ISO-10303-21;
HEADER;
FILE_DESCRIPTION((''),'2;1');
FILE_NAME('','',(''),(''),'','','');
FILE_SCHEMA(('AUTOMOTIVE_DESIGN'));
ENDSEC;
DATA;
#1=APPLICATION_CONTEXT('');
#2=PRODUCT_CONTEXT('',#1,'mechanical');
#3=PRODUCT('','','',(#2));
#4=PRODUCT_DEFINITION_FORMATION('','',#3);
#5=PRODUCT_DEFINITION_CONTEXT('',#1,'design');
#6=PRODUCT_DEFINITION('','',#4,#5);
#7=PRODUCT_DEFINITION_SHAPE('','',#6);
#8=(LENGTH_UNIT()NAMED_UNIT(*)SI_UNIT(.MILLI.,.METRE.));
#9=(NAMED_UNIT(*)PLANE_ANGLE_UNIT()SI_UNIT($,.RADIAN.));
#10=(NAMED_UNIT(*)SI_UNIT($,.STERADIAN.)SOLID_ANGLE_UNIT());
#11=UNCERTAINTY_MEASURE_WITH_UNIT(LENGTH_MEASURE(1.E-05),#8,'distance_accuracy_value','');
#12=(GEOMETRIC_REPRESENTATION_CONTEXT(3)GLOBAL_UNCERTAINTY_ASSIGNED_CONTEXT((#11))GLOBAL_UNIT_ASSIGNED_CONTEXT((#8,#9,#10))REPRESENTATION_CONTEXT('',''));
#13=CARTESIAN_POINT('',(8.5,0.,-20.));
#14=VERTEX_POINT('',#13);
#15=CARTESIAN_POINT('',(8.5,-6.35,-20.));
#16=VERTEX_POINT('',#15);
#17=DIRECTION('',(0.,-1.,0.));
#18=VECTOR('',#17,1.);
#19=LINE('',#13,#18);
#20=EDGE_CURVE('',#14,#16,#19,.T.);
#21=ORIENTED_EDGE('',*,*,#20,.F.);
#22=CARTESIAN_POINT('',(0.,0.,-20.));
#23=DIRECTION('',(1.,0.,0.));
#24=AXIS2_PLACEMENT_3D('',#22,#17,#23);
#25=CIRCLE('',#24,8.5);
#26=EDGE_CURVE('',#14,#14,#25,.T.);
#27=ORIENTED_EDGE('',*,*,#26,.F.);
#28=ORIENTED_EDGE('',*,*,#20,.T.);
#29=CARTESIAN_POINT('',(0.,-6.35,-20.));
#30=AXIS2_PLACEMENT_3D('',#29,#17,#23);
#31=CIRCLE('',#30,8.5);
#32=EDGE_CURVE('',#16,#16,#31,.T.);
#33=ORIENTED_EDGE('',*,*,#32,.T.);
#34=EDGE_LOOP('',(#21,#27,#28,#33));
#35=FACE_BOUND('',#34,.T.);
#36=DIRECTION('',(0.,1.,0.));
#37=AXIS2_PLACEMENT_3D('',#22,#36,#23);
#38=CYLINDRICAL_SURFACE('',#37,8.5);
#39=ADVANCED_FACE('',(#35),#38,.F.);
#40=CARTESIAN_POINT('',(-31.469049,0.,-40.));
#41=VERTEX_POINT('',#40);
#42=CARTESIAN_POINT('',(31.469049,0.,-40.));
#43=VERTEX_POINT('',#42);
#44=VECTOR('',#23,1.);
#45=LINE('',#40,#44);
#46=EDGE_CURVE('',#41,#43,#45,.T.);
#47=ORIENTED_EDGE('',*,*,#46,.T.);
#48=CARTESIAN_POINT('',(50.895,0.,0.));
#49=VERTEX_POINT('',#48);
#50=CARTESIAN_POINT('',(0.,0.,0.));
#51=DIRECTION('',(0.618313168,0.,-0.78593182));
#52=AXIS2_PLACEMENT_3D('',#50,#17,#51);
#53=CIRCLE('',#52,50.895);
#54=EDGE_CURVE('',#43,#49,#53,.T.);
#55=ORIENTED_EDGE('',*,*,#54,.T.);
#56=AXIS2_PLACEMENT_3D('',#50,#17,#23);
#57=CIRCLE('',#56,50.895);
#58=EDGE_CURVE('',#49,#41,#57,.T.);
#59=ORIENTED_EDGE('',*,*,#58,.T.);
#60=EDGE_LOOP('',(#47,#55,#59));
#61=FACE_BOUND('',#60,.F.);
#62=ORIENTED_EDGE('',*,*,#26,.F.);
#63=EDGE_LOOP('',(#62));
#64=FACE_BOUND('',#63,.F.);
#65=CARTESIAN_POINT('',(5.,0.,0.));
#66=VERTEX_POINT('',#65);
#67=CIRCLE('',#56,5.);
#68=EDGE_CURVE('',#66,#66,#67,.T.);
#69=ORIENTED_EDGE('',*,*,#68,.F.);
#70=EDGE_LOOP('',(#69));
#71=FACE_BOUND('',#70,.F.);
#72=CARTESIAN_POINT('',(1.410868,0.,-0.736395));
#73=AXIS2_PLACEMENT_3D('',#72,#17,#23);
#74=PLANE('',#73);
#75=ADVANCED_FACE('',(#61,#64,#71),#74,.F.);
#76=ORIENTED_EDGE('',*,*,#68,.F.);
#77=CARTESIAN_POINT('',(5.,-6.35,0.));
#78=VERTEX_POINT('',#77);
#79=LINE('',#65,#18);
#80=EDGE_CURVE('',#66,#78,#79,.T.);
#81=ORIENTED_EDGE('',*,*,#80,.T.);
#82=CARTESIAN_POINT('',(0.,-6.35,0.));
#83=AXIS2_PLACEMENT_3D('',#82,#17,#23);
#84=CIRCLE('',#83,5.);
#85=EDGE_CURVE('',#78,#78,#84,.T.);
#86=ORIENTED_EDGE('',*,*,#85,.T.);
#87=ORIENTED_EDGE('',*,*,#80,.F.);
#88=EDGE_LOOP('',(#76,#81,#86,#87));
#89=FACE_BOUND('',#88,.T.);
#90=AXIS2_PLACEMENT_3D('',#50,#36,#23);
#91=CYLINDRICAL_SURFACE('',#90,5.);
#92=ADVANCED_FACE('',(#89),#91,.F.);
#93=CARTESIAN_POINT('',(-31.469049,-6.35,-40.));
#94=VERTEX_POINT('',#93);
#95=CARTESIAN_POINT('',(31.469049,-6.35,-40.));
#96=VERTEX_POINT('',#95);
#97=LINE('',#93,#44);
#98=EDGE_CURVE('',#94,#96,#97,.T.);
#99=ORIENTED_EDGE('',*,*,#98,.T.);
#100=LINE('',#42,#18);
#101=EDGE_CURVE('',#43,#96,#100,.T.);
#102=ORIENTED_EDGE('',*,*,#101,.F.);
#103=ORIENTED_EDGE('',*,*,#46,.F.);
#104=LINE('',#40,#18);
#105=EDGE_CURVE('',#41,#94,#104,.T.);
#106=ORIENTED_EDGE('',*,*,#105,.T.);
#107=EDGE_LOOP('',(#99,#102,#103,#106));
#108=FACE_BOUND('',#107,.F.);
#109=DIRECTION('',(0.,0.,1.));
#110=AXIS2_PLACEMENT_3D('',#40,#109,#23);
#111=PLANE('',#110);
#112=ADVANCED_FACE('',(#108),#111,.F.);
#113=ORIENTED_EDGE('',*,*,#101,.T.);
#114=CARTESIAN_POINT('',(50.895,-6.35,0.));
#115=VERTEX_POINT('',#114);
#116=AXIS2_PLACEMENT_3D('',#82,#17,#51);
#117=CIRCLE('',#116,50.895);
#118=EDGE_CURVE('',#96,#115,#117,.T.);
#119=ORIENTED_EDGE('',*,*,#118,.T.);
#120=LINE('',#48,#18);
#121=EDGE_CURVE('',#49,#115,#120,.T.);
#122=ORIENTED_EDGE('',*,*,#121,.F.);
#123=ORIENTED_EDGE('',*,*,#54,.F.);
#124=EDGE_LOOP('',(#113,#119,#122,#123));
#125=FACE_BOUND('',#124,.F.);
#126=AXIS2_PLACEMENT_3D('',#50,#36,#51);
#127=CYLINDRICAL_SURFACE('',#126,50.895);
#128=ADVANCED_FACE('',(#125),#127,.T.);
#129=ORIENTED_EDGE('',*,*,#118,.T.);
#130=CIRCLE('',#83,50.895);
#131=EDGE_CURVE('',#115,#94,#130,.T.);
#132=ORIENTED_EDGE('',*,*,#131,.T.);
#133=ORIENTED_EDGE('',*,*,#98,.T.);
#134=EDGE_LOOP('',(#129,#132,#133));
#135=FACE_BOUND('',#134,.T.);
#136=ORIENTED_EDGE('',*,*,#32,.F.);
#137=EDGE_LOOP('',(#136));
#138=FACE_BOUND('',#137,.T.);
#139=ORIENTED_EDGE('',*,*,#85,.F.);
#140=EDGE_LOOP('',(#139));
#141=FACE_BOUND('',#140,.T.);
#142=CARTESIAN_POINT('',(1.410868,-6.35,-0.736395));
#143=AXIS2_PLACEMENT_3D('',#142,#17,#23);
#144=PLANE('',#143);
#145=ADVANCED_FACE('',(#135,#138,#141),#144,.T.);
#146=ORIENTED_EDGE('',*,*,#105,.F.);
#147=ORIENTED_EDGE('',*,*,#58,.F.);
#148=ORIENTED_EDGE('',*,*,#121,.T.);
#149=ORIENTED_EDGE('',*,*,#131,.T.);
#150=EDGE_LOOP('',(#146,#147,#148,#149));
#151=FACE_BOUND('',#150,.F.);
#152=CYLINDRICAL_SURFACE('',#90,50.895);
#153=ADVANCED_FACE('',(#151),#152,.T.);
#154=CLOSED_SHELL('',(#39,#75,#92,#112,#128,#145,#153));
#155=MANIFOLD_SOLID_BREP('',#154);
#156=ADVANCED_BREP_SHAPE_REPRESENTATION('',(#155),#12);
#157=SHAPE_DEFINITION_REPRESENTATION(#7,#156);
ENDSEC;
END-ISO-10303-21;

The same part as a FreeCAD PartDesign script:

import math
import FreeCAD as App
import Part
import Sketcher
Q = App.Units.Quantity

doc = App.newDocument("Part")
body = doc.addObject("PartDesign::Body", "Body")

sketch1 = body.newObject("Sketcher::SketchObject", "Sketch")
sketch1.AttachmentSupport = (doc.getObject("XZ_Plane"), [""])
sketch1.MapMode = "FlatFace"
sketch1.addGeometry(Part.ArcOfCircle(Part.Circle(App.Vector(0, 0, 0), App.Vector(0, 0, 1), 51), math.radians(-52), math.radians(0)), False)
sketch1.addGeometry(Part.ArcOfCircle(Part.Circle(App.Vector(0, 0, 0), App.Vector(0, 0, 1), 51), math.radians(0), math.radians(232)), False)
sketch1.addGeometry(Part.LineSegment(App.Vector(-31, -40, 0), App.Vector(31, -40, 0)), False)
sketch1.addGeometry(Part.Circle(App.Vector(0, -20, 0), App.Vector(0, 0, 1), 8), False)
sketch1.addGeometry(Part.Circle(App.Vector(0, 0, 0), App.Vector(0, 0, 1), 5), False)
sketch1.addConstraint(Sketcher.Constraint("Tangent", 0, 2, 1, 1))
sketch1.addConstraint(Sketcher.Constraint("Coincident", 1, 2, 2, 1))
sketch1.addConstraint(Sketcher.Constraint("Coincident", 2, 2, 0, 1))
sketch1.addConstraint(Sketcher.Constraint("Horizontal", 2))
sketch1.addConstraint(Sketcher.Constraint("Coincident", 0, 3, -1, 1))
sketch1.addConstraint(Sketcher.Constraint("Coincident", 4, 3, -1, 1))
sketch1.addConstraint(Sketcher.Constraint("Equal", 0, 1))
sketch1.addConstraint(Sketcher.Constraint("PointOnObject", 3, 3, -2))
sketch1.addConstraint(Sketcher.Constraint("PointOnObject", 0, 2, -1))
sketch1.addConstraint(Sketcher.Constraint("Diameter", 3, Q("17 mm")))
sketch1.addConstraint(Sketcher.Constraint("Diameter", 4, Q("10 mm")))
sketch1.addConstraint(Sketcher.Constraint("DistanceY", 3, 3, -1, 1, Q("20 mm")))
sketch1.addConstraint(Sketcher.Constraint("DistanceY", 1, 2, -1, 1, Q("40 mm")))
sketch1.addConstraint(Sketcher.Constraint("Radius", 0, Q("50.895 mm")))
pad1 = body.newObject("PartDesign::Pad", "Pad")
pad1.Profile = sketch1
pad1.Length = 6.35

doc.recompute()
